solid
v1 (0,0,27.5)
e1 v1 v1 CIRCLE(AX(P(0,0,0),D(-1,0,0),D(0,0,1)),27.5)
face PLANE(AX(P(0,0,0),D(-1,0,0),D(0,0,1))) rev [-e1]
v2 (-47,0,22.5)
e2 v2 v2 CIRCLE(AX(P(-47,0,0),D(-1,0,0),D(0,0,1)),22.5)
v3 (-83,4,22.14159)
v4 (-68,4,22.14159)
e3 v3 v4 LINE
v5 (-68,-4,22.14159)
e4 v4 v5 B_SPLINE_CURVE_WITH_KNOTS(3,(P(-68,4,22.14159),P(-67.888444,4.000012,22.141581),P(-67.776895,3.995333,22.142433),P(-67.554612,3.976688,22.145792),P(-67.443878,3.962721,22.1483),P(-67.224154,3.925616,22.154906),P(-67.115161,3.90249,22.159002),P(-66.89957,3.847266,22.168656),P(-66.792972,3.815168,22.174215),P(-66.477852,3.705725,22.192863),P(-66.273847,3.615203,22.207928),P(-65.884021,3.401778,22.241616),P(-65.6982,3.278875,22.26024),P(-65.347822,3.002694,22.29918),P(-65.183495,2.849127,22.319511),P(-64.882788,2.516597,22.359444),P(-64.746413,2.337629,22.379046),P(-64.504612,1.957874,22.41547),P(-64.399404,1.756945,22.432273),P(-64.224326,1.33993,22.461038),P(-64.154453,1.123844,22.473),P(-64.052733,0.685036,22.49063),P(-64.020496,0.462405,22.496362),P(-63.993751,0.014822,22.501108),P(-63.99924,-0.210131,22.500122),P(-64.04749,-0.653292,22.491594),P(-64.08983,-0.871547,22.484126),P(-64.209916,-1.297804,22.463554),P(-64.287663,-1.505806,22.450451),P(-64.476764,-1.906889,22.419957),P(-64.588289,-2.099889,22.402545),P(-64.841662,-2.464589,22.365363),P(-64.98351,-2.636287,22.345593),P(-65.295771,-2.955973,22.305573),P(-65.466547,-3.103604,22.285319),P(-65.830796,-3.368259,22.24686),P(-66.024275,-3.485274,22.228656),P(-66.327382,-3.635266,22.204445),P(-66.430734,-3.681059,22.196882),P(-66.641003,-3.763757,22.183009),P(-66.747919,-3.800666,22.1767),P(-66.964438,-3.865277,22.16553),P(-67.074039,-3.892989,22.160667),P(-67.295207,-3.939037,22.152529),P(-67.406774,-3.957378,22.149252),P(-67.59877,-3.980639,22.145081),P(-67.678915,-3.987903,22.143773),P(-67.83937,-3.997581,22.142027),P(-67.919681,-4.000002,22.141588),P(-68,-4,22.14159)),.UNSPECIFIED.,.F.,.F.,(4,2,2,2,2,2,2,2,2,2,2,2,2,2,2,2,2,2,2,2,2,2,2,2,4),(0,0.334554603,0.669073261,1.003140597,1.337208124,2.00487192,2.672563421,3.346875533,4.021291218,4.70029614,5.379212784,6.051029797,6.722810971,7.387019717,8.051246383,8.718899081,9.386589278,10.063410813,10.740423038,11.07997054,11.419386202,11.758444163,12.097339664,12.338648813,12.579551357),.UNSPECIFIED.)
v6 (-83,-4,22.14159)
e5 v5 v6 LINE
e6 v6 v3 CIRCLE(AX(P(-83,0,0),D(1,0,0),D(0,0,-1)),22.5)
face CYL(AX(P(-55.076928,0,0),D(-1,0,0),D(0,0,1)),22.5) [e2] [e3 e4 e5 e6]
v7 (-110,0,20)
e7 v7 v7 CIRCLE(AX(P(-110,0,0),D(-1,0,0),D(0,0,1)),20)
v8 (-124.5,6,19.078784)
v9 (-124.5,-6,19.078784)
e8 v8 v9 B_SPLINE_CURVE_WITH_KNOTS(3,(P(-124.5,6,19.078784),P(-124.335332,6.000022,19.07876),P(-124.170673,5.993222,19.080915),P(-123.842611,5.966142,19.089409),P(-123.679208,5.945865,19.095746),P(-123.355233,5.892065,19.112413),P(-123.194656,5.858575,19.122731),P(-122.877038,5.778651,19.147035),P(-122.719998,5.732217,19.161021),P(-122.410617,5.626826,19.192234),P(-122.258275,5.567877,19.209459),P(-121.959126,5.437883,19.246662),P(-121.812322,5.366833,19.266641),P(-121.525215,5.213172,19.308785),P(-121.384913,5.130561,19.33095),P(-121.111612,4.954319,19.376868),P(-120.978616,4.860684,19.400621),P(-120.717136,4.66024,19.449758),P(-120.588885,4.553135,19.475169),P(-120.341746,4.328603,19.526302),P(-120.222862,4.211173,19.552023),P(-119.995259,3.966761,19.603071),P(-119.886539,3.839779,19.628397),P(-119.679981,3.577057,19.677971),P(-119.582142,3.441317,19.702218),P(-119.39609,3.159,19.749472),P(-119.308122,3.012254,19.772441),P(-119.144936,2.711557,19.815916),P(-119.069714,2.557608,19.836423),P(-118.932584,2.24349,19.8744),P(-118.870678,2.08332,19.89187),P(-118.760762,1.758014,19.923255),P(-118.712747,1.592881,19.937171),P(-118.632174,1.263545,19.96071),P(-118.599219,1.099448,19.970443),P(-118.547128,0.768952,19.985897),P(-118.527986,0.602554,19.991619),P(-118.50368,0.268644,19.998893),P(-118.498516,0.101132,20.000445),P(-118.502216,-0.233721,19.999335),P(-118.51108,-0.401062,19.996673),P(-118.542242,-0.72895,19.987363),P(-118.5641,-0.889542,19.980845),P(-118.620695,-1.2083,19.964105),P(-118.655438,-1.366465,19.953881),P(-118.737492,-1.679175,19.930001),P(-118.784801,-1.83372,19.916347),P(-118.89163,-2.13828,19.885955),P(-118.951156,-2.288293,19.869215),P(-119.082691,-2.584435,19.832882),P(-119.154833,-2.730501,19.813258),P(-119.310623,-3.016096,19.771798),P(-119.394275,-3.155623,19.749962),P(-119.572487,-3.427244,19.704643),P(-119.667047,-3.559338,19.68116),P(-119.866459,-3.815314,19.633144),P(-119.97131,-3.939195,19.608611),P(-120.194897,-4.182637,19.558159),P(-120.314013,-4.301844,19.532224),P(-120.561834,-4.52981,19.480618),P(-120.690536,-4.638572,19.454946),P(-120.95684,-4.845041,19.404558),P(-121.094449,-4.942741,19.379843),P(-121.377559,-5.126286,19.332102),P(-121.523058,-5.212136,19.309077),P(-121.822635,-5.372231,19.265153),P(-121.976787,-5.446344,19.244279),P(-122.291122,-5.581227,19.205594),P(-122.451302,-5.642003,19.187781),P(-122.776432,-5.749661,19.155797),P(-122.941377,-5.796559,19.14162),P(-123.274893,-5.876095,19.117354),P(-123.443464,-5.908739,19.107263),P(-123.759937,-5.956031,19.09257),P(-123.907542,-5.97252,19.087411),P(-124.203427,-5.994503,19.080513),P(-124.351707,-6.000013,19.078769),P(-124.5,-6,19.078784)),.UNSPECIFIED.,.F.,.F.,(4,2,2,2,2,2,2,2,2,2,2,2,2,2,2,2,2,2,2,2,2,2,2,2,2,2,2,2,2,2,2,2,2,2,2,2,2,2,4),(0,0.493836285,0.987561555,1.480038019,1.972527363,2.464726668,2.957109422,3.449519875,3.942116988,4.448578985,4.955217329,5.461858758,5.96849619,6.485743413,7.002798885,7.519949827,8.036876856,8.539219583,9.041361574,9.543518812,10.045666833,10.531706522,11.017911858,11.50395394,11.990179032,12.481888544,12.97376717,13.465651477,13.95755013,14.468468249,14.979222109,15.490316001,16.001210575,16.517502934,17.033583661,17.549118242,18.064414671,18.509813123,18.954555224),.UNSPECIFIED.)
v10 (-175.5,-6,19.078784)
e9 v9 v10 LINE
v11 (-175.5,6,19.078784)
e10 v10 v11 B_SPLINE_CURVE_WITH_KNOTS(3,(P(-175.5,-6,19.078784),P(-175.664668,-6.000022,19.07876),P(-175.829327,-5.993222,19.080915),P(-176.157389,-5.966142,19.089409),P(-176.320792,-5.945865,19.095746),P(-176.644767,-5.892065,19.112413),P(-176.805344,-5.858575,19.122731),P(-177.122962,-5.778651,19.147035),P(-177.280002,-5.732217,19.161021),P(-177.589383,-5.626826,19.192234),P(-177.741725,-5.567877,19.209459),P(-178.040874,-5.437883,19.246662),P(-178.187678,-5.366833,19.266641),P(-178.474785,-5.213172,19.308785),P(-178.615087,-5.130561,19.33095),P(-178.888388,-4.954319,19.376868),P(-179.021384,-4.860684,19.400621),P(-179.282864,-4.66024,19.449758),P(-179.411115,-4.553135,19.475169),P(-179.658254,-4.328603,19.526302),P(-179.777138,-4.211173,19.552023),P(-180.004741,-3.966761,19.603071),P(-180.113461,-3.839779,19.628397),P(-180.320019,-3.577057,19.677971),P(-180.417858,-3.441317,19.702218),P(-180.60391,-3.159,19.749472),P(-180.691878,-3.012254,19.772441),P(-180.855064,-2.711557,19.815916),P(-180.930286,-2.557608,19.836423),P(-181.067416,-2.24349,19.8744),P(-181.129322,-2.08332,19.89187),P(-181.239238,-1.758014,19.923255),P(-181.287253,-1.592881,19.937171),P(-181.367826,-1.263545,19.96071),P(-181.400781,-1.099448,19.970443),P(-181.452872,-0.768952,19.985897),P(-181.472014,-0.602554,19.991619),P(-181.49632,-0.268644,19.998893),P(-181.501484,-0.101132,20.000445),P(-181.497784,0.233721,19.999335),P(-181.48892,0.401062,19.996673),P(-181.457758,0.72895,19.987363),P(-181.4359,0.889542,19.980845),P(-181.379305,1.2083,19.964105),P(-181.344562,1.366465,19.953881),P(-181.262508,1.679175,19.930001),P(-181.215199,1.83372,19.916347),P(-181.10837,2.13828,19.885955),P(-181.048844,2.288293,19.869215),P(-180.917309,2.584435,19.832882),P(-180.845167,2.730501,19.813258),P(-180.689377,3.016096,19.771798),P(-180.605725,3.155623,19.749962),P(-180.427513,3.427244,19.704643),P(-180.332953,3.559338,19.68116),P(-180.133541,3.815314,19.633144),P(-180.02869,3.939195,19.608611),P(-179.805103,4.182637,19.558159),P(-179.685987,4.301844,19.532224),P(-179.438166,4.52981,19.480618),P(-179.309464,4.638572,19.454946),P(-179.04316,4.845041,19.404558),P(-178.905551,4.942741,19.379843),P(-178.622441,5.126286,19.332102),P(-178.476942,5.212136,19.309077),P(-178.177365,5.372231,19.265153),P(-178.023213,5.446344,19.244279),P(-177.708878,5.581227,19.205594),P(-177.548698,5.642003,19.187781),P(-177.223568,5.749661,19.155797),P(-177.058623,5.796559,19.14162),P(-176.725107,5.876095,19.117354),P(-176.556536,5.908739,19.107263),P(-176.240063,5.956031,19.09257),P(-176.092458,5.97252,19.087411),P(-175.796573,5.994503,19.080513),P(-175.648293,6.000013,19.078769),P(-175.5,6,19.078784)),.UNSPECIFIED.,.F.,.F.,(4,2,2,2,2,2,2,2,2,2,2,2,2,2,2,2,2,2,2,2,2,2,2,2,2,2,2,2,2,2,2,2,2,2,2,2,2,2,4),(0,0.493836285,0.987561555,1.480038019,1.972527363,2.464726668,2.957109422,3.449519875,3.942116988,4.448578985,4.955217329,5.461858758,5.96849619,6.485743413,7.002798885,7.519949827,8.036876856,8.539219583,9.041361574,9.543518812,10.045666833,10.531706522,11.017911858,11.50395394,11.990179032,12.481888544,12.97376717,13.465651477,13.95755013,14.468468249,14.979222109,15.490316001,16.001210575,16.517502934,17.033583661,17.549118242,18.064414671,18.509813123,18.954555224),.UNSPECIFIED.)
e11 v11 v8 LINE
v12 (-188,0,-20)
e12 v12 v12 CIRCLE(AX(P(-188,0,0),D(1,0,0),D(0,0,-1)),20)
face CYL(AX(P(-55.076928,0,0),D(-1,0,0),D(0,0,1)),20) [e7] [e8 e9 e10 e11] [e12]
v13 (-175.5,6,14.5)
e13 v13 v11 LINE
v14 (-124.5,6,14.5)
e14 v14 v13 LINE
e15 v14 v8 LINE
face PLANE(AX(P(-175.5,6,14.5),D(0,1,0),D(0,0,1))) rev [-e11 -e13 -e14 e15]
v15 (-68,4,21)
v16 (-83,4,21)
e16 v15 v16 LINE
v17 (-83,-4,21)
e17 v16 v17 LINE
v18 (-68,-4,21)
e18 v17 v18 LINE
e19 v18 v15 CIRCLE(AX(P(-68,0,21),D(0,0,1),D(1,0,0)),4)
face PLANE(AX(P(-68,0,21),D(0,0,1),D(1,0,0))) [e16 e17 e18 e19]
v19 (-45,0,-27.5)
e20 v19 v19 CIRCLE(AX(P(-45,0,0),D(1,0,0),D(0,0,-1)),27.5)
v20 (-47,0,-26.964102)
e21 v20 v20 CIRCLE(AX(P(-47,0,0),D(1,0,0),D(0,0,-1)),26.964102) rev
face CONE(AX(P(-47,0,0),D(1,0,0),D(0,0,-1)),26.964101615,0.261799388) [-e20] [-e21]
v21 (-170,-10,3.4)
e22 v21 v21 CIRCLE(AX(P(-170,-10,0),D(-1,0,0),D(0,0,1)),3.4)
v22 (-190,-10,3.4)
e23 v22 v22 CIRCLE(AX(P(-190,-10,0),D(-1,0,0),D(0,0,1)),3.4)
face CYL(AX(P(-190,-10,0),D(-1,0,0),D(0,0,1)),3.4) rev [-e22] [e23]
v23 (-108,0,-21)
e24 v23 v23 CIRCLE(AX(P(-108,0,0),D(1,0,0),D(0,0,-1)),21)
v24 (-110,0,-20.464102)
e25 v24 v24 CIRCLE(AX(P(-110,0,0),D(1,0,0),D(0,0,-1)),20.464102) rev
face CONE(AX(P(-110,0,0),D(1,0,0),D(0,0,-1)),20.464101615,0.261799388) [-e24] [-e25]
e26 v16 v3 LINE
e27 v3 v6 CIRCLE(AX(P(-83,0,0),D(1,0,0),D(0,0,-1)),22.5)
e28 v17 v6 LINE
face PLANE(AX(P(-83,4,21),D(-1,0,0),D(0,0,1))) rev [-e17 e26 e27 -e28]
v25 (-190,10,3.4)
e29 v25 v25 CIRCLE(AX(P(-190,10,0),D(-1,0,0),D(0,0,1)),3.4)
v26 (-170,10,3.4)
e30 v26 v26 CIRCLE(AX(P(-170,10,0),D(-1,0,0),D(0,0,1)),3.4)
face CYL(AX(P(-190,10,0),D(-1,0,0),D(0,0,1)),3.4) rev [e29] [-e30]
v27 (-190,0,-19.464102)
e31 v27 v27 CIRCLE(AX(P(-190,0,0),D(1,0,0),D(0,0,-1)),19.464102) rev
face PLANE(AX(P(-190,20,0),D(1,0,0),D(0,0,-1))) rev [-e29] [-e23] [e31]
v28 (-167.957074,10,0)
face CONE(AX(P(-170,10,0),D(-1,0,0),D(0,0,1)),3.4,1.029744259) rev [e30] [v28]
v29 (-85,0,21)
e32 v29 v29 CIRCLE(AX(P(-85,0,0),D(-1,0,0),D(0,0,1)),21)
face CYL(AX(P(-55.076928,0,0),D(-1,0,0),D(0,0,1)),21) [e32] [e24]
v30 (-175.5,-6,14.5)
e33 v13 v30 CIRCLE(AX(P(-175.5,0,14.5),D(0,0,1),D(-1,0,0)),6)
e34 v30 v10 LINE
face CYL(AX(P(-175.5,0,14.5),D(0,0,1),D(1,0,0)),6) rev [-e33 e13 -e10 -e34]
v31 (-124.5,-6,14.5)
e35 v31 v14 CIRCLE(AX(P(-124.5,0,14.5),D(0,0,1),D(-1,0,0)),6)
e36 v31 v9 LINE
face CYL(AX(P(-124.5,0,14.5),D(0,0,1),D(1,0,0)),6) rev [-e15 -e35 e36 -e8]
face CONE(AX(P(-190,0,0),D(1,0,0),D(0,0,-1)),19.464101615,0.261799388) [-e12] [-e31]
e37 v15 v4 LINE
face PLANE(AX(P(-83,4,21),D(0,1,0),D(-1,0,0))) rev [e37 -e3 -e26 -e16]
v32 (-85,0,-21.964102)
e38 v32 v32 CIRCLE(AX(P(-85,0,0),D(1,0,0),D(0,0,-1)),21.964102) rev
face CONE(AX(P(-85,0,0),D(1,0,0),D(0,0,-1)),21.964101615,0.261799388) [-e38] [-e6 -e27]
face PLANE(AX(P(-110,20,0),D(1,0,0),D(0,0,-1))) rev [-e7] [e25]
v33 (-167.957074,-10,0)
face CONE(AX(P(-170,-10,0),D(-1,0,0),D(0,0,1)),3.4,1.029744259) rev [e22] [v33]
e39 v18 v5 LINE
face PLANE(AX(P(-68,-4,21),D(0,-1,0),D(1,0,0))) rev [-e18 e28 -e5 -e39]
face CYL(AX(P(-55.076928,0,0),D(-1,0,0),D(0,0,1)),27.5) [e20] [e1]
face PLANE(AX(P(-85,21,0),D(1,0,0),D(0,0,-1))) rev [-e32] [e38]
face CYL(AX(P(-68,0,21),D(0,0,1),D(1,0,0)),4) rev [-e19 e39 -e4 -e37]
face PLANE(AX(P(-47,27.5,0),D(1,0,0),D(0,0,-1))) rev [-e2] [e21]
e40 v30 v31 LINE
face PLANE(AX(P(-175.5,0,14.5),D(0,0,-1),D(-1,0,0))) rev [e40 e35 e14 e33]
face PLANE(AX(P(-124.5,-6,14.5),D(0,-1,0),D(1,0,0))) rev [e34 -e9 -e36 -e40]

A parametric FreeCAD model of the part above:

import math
import FreeCAD as App
import Part
import Sketcher

V = App.Vector
Q = App.Units.Quantity


def edges_at(feature, points):
    """Names of the edges that pass closest to the given points."""
    edges = feature.Shape.Edges
    near = lambda p: min(range(len(edges)), key=lambda i: edges[i].distToShape(Part.Vertex(*p))[0])
    return sorted({f"Edge{near(p) + 1}" for p in points})

doc = App.newDocument("Part")
body = doc.addObject("PartDesign::Body", "Body")

sketch1 = doc.addObject("Sketcher::SketchObject", "Sketch")
body.addObject(sketch1)
sketch1.AttachmentSupport = (doc.XY_Plane, [""])
sketch1.MapMode = "FlatFace"
sketch1.addGeometry(Part.LineSegment(V(-47, 22.5, 0), V(-85, 22.5, 0)), False)
sketch1.addGeometry(Part.LineSegment(V(-85, 22.5, 0), V(-85, 21, 0)), False)
sketch1.addGeometry(Part.LineSegment(V(-85, 21, 0), V(-110, 21, 0)), False)
sketch1.addGeometry(Part.LineSegment(V(-110, 21, 0), V(-110, 20, 0)), False)
sketch1.addGeometry(Part.LineSegment(V(-110, 20, 0), V(-190, 20, 0)), False)
sketch1.addGeometry(Part.LineSegment(V(-190, 20, 0), V(-190, 0, 0)), False)
sketch1.addGeometry(Part.LineSegment(V(-190, 0, 0), V(0, 0, 0)), False)
sketch1.addGeometry(Part.LineSegment(V(0, 0, 0), V(0, 27.5, 0)), False)
sketch1.addGeometry(Part.LineSegment(V(0, 27.5, 0), V(-47, 27.5, 0)), False)
sketch1.addGeometry(Part.LineSegment(V(-47, 27.5, 0), V(-47, 22.5, 0)), False)
sketch1.addConstraint(Sketcher.Constraint("Coincident", 0, 2, 1, 1))
sketch1.addConstraint(Sketcher.Constraint("Coincident", 1, 2, 2, 1))
sketch1.addConstraint(Sketcher.Constraint("Coincident", 2, 2, 3, 1))
sketch1.addConstraint(Sketcher.Constraint("Coincident", 3, 2, 4, 1))
sketch1.addConstraint(Sketcher.Constraint("Coincident", 4, 2, 5, 1))
sketch1.addConstraint(Sketcher.Constraint("Coincident", 5, 2, 6, 1))
sketch1.addConstraint(Sketcher.Constraint("Coincident", 6, 2, 7, 1))
sketch1.addConstraint(Sketcher.Constraint("Coincident", 7, 2, 8, 1))
sketch1.addConstraint(Sketcher.Constraint("Coincident", 8, 2, 9, 1))
sketch1.addConstraint(Sketcher.Constraint("Coincident", 9, 2, 0, 1))
sketch1.addConstraint(Sketcher.Constraint("Horizontal", 0))
sketch1.addConstraint(Sketcher.Constraint("Vertical", 1))
sketch1.addConstraint(Sketcher.Constraint("Horizontal", 2))
sketch1.addConstraint(Sketcher.Constraint("Vertical", 3))
sketch1.addConstraint(Sketcher.Constraint("Horizontal", 4))
sketch1.addConstraint(Sketcher.Constraint("Vertical", 5))
sketch1.addConstraint(Sketcher.Constraint("Horizontal", 6))
sketch1.addConstraint(Sketcher.Constraint("Vertical", 7))
sketch1.addConstraint(Sketcher.Constraint("Horizontal", 8))
sketch1.addConstraint(Sketcher.Constraint("Vertical", 9))
sketch1.addConstraint(Sketcher.Constraint("Coincident", 6, 2, -1, 1))
sketch1.addConstraint(Sketcher.Constraint("DistanceX", 0, 2, 0, 1, Q("38 mm")))
sketch1.addConstraint(Sketcher.Constraint("DistanceX", 2, 2, 2, 1, Q("25 mm")))
sketch1.addConstraint(Sketcher.Constraint("DistanceX", 4, 2, 4, 1, Q("80 mm")))
sketch1.addConstraint(Sketcher.Constraint("DistanceX", 6, 1, 6, 2, Q("190 mm")))
sketch1.addConstraint(Sketcher.Constraint("DistanceY", 3, 2, 3, 1, Q("1 mm")))
sketch1.addConstraint(Sketcher.Constraint("DistanceY", 5, 2, 5, 1, Q("20 mm")))
sketch1.addConstraint(Sketcher.Constraint("DistanceY", 9, 2, 9, 1, Q("5 mm")))
sketch1.addConstraint(Sketcher.Constraint("DistanceY", 1, 2, 1, 1, Q("1.5 mm")))
revolution = doc.addObject("PartDesign::Revolution", "Revolution")
body.addObject(revolution)
revolution.Profile = sketch1
revolution.ReferenceAxis = (sketch1, ["H_Axis"])
revolution.Angle = 360
doc.recompute()

chamfer = doc.addObject("PartDesign::Chamfer", "Chamfer")
body.addObject(chamfer)
chamfer.Base = (revolution, edges_at(revolution, [(-47, 0, -27.5)]))
chamfer.ChamferType = "Two distances"
chamfer.Size = 2
chamfer.Size2 = 0.535898
doc.recompute()

chamfer2 = doc.addObject("PartDesign::Chamfer", "Chamfer001")
body.addObject(chamfer2)
chamfer2.Base = (chamfer, edges_at(chamfer, [(-85, 0, -22.5)]))
chamfer2.ChamferType = "Two distances"
chamfer2.Size = 2
chamfer2.Size2 = 0.535898
doc.recompute()

chamfer3 = doc.addObject("PartDesign::Chamfer", "Chamfer002")
body.addObject(chamfer3)
chamfer3.Base = (chamfer2, edges_at(chamfer2, [(-110, 0, -21)]))
chamfer3.ChamferType = "Two distances"
chamfer3.Size = 2
chamfer3.Size2 = 0.535898

sketch2 = doc.addObject("Sketcher::SketchObject", "Sketch001")
body.addObject(sketch2)
sketch2.AttachmentSupport = (doc.XY_Plane, [""])
sketch2.MapMode = "FlatFace"
sketch2.AttachmentOffset = App.Placement(V(0, 0, 20), App.Rotation())
sketch2.addGeometry(Part.LineSegment(V(-124, 6, 0), V(-176, 6, 0)), False)
sketch2.addGeometry(Part.ArcOfCircle(Part.Circle(V(-176, 0, 0), V(0, 0, 1), 6), math.radians(90), math.radians(270)), False)
sketch2.addGeometry(Part.LineSegment(V(-176, -6, 0), V(-124, -6, 0)), False)
sketch2.addGeometry(Part.ArcOfCircle(Part.Circle(V(-124, 0, 0), V(0, 0, 1), 6), math.radians(-90), math.radians(90)), False)
sketch2.addConstraint(Sketcher.Constraint("Tangent", 0, 2, 1, 1))
sketch2.addConstraint(Sketcher.Constraint("Tangent", 1, 2, 2, 1))
sketch2.addConstraint(Sketcher.Constraint("Tangent", 2, 2, 3, 1))
sketch2.addConstraint(Sketcher.Constraint("Tangent", 3, 2, 0, 1))
sketch2.addConstraint(Sketcher.Constraint("Horizontal", 0))
sketch2.addConstraint(Sketcher.Constraint("Horizontal", 2))
sketch2.addConstraint(Sketcher.Constraint("PointOnObject", 1, 3, -1))
sketch2.addConstraint(Sketcher.Constraint("Radius", 1, Q("6 mm")))
sketch2.addConstraint(Sketcher.Constraint("DistanceX", 0, 2, 0, 1, Q("51 mm")))
sketch2.addConstraint(Sketcher.Constraint("DistanceX", 1, 3, -1, 1, Q("175.5 mm")))
pocket1 = doc.addObject("PartDesign::Pocket", "Pocket")
body.addObject(pocket1)
pocket1.Profile = sketch2
pocket1.Length = 5.5

sketch3 = doc.addObject("Sketcher::SketchObject", "Sketch002")
body.addObject(sketch3)
sketch3.AttachmentSupport = (doc.YZ_Plane, [""])
sketch3.MapMode = "FlatFace"
sketch3.AttachmentOffset = App.Placement(V(0, 0, -190), App.Rotation())
sketch3.addGeometry(Part.Circle(V(10, 0, 0), V(0, 0, 1), 3.4), False)
sketch3.addGeometry(Part.Circle(V(-10, 0, 0), V(0, 0, 1), 3.4), False)
sketch3.addConstraint(Sketcher.Constraint("Equal", 0, 1))
sketch3.addConstraint(Sketcher.Constraint("Symmetric", 0, 3, 1, 3, -1, 1))
sketch3.addConstraint(Sketcher.Constraint("PointOnObject", 0, 3, -1))
sketch3.addConstraint(Sketcher.Constraint("Diameter", 0, Q("6.8 mm")))
sketch3.addConstraint(Sketcher.Constraint("DistanceX", -1, 1, 0, 3, Q("10 mm")))
doc.recompute()
hole = doc.addObject("PartDesign::Hole", "Hole")
body.addObject(hole)
hole.Profile = sketch3
hole.ThreadType = "None"
hole.Diameter = 6.8
hole.DepthType = "Dimension"
hole.Depth = 20
hole.DrillPoint = "Angled"
hole.DrillPointAngle = 118
hole.Reversed = True
doc.recompute()

chamfer4 = doc.addObject("PartDesign::Chamfer", "Chamfer003")
body.addObject(chamfer4)
chamfer4.Base = (hole, edges_at(hole, [(-190, 0, -20)]))
chamfer4.ChamferType = "Two distances"
chamfer4.Size = 2
chamfer4.Size2 = 0.535898

sketch4 = doc.addObject("Sketcher::SketchObject", "Sketch003")
body.addObject(sketch4)
sketch4.AttachmentSupport = (doc.XY_Plane, [""])
sketch4.MapMode = "FlatFace"
sketch4.AttachmentOffset = App.Placement(V(0, 0, 22.5), App.Rotation())
sketch4.addGeometry(Part.LineSegment(V(-68, 4, 0), V(-83, 4, 0)), False)
sketch4.addGeometry(Part.LineSegment(V(-83, 4, 0), V(-83, -4, 0)), False)
sketch4.addGeometry(Part.LineSegment(V(-83, -4, 0), V(-68, -4, 0)), False)
sketch4.addGeometry(Part.ArcOfCircle(Part.Circle(V(-68, 0, 0), V(0, 0, 1), 4), math.radians(-90), math.radians(90)), False)
sketch4.addConstraint(Sketcher.Constraint("Coincident", 0, 2, 1, 1))
sketch4.addConstraint(Sketcher.Constraint("Coincident", 1, 2, 2, 1))
sketch4.addConstraint(Sketcher.Constraint("Tangent", 2, 2, 3, 1))
sketch4.addConstraint(Sketcher.Constraint("Tangent", 3, 2, 0, 1))
sketch4.addConstraint(Sketcher.Constraint("Horizontal", 0))
sketch4.addConstraint(Sketcher.Constraint("Vertical", 1))
sketch4.addConstraint(Sketcher.Constraint("Horizontal", 2))
sketch4.addConstraint(Sketcher.Constraint("PointOnObject", 3, 3, -1))
sketch4.addConstraint(Sketcher.Constraint("Radius", 3, Q("4 mm")))
sketch4.addConstraint(Sketcher.Constraint("DistanceX", 0, 2, 0, 1, Q("15 mm")))
sketch4.addConstraint(Sketcher.Constraint("DistanceX", 3, 3, -1, 1, Q("68 mm")))
pocket2 = doc.addObject("PartDesign::Pocket", "Pocket001")
body.addObject(pocket2)
pocket2.Profile = sketch4
pocket2.Length = 1.5

doc.recompute()
